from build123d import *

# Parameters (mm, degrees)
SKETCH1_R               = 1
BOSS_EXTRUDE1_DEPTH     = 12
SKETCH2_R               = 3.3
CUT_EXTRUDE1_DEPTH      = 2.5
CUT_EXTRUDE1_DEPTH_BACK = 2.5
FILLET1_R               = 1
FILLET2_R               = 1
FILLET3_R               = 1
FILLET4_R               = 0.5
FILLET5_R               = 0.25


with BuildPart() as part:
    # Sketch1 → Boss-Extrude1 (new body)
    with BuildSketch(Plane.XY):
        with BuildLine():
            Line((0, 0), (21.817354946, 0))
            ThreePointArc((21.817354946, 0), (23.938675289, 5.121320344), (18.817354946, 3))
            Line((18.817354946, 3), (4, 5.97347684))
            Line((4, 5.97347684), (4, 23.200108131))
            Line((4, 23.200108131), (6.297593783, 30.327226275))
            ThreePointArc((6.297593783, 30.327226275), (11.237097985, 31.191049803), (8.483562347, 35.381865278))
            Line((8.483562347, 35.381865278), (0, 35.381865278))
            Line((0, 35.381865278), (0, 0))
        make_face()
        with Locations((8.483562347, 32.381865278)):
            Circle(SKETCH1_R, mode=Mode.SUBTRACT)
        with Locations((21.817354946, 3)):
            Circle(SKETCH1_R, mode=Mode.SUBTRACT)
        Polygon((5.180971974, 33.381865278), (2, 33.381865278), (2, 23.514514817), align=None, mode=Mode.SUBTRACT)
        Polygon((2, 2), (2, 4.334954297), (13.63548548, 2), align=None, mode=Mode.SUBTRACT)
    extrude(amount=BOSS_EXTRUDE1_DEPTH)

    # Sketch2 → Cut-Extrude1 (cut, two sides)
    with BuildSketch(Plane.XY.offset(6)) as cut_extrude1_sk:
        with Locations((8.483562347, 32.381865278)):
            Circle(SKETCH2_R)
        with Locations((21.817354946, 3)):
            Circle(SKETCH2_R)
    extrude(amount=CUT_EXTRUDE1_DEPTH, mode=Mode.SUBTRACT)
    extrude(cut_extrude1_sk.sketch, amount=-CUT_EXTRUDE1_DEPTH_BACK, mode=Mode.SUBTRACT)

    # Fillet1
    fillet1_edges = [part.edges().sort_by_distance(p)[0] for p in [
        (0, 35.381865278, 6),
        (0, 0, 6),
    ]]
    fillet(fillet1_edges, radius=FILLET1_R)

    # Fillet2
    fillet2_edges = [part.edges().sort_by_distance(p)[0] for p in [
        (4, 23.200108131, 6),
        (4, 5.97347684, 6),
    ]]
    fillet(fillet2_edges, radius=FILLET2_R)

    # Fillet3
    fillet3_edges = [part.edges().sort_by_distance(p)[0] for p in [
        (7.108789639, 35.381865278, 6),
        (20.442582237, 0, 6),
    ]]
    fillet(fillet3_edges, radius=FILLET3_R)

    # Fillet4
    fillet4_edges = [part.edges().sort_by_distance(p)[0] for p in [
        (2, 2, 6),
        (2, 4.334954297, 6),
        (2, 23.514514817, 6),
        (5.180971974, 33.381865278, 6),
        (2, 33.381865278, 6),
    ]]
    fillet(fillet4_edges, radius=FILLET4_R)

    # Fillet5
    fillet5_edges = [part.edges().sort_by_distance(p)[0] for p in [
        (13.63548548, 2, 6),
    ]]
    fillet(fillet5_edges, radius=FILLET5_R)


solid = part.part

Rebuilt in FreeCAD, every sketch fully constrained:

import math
import FreeCAD as App
import Part
import Sketcher
from FreeCAD import Vector


def edges_at(feature, points):
    """Names of the edges that pass closest to the given points."""
    edges = feature.Shape.Edges
    near = lambda p: min(range(len(edges)), key=lambda i: edges[i].distToShape(Part.Vertex(*p))[0])
    return sorted({f"Edge{near(p) + 1}" for p in points})

doc = App.newDocument("Part")
body = doc.addObject("PartDesign::Body", "Body")

# Sketch on XY plane
sketch1 = body.newObject("Sketcher::SketchObject", "Sketch")
sketch1.AttachmentSupport = (doc.getObject("XY_Plane"), [""])
sketch1.MapMode = "FlatFace"
sketch1.addGeometry([
    Part.LineSegment(Vector(0, 0, 0), Vector(21.8, 0, 0)),  # 0
    Part.ArcOfCircle(Part.Circle(Vector(21.8, 3, 0), Vector(0, 0, 1), 3), math.radians(-90), math.radians(180)),  # 1
    Part.LineSegment(Vector(18.8, 3, 0), Vector(4, 6, 0)),  # 2
    Part.LineSegment(Vector(4, 6, 0), Vector(4, 23.2, 0)),  # 3
    Part.LineSegment(Vector(4, 23.2, 0), Vector(6.3, 30.3, 0)),  # 4
    Part.ArcOfCircle(Part.Circle(Vector(8.5, 32.4, 0), Vector(0, 0, 1), 3), math.radians(-137), math.radians(90)),  # 5
    Part.LineSegment(Vector(8.5, 35.4, 0), Vector(0, 35.4, 0)),  # 6
    Part.LineSegment(Vector(0, 35.4, 0), Vector(0, 0, 0)),  # 7
    Part.LineSegment(Vector(13.6, 2, 0), Vector(2, 2, 0)),  # 8
    Part.LineSegment(Vector(2, 2, 0), Vector(2, 4.3, 0)),  # 9
    Part.LineSegment(Vector(2, 4.3, 0), Vector(13.6, 2, 0)),  # 10
    Part.Circle(Vector(21.8, 3, 0), Vector(0, 0, 1), 1),  # 11
    Part.LineSegment(Vector(2, 33.4, 0), Vector(5.2, 33.4, 0)),  # 12
    Part.LineSegment(Vector(5.2, 33.4, 0), Vector(2, 23.5, 0)),  # 13
    Part.LineSegment(Vector(2, 23.5, 0), Vector(2, 33.4, 0)),  # 14
    Part.Circle(Vector(8.5, 32.4, 0), Vector(0, 0, 1), 1),  # 15
], False)
sketch1.addConstraint([
    Sketcher.Constraint("Tangent", 0, 2, 1, 1),
    Sketcher.Constraint("Coincident", 1, 2, 2, 1),
    Sketcher.Constraint("Coincident", 2, 2, 3, 1),
    Sketcher.Constraint("Coincident", 3, 2, 4, 1),
    Sketcher.Constraint("Coincident", 4, 2, 5, 1),
    Sketcher.Constraint("Tangent", 5, 2, 6, 1),
    Sketcher.Constraint("Coincident", 6, 2, 7, 1),
    Sketcher.Constraint("Coincident", 7, 2, 0, 1),
    Sketcher.Constraint("Coincident", 8, 2, 9, 1),
    Sketcher.Constraint("Coincident", 9, 2, 10, 1),
    Sketcher.Constraint("Coincident", 10, 2, 8, 1),
    Sketcher.Constraint("Coincident", 12, 2, 13, 1),
    Sketcher.Constraint("Coincident", 13, 2, 14, 1),
    Sketcher.Constraint("Coincident", 14, 2, 12, 1),
    Sketcher.Constraint("Horizontal", 0),
    Sketcher.Constraint("Vertical", 3),
    Sketcher.Constraint("Horizontal", 6),
    Sketcher.Constraint("Vertical", 7),
    Sketcher.Constraint("Horizontal", 8),
    Sketcher.Constraint("Vertical", 9),
    Sketcher.Constraint("Horizontal", 12),
    Sketcher.Constraint("Vertical", 14),
    Sketcher.Constraint("Coincident", 7, 2, -1, 1),
    Sketcher.Constraint("Coincident", 11, 3, 1, 3),
    Sketcher.Constraint("Coincident", 15, 3, 5, 3),
    Sketcher.Constraint("Equal", 1, 5),
    Sketcher.Constraint("Equal", 11, 15),
    Sketcher.Constraint("Parallel", 2, 10),
    Sketcher.Constraint("Parallel", 4, 13),
    Sketcher.Constraint("Horizontal", 11, 3, 1, 2),
    Sketcher.Constraint("Vertical", 9, 2, 13, 2),
    Sketcher.Constraint("Diameter", 11, 2.0),
    Sketcher.Constraint("Radius", 1, 3.0),
    Sketcher.Constraint("DistanceX", -1, 1, 2, 2, 4.0),
    Sketcher.Constraint("DistanceX", -1, 1, 8, 2, 2.0),
    Sketcher.Constraint("DistanceY", -1, 1, 8, 2, 2.0),
    Sketcher.Constraint("DistanceY", 15, 3, 12, 2, 1.0),
    Sketcher.Constraint("DistanceX", 12, 1, 12, 2, 3.180972),
    Sketcher.Constraint("DistanceY", 3, 1, 3, 2, 17.226631),
    Sketcher.Constraint("DistanceY", 14, 1, 14, 2, 9.86735),
    Sketcher.Constraint("Distance", 2, 15.112762),
    Sketcher.Constraint("DistanceX", 0, 1, 0, 2, 21.817355),
    Sketcher.Constraint("DistanceX", 6, 2, 6, 1, 8.483562),
    Sketcher.Constraint("DistanceX", 8, 2, 8, 1, 11.635485),
    Sketcher.Constraint("DistanceY", 7, 2, 7, 1, 35.381865),
])
pad1 = body.newObject("PartDesign::Pad", "Pad")
pad1.Profile = sketch1
pad1.Length = 12

# Sketch on XY plane
sketch2 = body.newObject("Sketcher::SketchObject", "Sketch001")
sketch2.AttachmentSupport = (doc.getObject("XY_Plane"), [""])
sketch2.MapMode = "FlatFace"
sketch2.AttachmentOffset = App.Placement(Vector(0, 0, 6), App.Rotation())
sketch2.addGeometry([
    Part.Circle(Vector(8.5, 32.4, 0), Vector(0, 0, 1), 3.3),
    Part.Circle(Vector(21.8, 3, 0), Vector(0, 0, 1), 3.3),
], False)
sketch2.addConstraint([
    Sketcher.Constraint("Equal", 0, 1),
    Sketcher.Constraint("Diameter", 0, 6.6),
    Sketcher.Constraint("DistanceY", -1, 1, 1, 3, 3.0),
    Sketcher.Constraint("DistanceX", -1, 1, 0, 3, 8.483562),
    Sketcher.Constraint("DistanceY", -1, 1, 0, 3, 32.381865),
    Sketcher.Constraint("DistanceX", -1, 1, 1, 3, 21.817355),
])
pocket1 = body.newObject("PartDesign::Pocket", "Pocket")
pocket1.Profile = sketch2
pocket1.Type = "TwoLengths"
pocket1.Length = 2.5
pocket1.Length2 = 2.5
pocket1.Reversed = True
doc.recompute()

fillet = body.newObject("PartDesign::Fillet", "Fillet")
fillet.Base = (pocket1, edges_at(pocket1, [(0, 35.382, 6), (0, 0, 6)]))
fillet.Radius = 1
doc.recompute()

fillet2 = body.newObject("PartDesign::Fillet", "Fillet001")
fillet2.Base = (fillet, edges_at(fillet, [(4, 23.2, 6), (4, 5.973, 6)]))
fillet2.Radius = 1
doc.recompute()

fillet3 = body.newObject("PartDesign::Fillet", "Fillet002")
fillet3.Base = (fillet2, edges_at(fillet2, [(7.109, 35.382, 6), (20.443, 0, 6)]))
fillet3.Radius = 1
doc.recompute()

fillet4 = body.newObject("PartDesign::Fillet", "Fillet003")
fillet4.Base = (fillet3, edges_at(fillet3, [
    (2, 2, 6),
    (2, 4.335, 6),
    (2, 23.515, 6),
    (5.181, 33.382, 6),
    (2, 33.382, 6),
]))
fillet4.Radius = 0.5
doc.recompute()

fillet5 = body.newObject("PartDesign::Fillet", "Fillet004")
fillet5.Base = (fillet4, edges_at(fillet4, [(13.635, 2, 6)]))
fillet5.Radius = 0.25

doc.recompute()
